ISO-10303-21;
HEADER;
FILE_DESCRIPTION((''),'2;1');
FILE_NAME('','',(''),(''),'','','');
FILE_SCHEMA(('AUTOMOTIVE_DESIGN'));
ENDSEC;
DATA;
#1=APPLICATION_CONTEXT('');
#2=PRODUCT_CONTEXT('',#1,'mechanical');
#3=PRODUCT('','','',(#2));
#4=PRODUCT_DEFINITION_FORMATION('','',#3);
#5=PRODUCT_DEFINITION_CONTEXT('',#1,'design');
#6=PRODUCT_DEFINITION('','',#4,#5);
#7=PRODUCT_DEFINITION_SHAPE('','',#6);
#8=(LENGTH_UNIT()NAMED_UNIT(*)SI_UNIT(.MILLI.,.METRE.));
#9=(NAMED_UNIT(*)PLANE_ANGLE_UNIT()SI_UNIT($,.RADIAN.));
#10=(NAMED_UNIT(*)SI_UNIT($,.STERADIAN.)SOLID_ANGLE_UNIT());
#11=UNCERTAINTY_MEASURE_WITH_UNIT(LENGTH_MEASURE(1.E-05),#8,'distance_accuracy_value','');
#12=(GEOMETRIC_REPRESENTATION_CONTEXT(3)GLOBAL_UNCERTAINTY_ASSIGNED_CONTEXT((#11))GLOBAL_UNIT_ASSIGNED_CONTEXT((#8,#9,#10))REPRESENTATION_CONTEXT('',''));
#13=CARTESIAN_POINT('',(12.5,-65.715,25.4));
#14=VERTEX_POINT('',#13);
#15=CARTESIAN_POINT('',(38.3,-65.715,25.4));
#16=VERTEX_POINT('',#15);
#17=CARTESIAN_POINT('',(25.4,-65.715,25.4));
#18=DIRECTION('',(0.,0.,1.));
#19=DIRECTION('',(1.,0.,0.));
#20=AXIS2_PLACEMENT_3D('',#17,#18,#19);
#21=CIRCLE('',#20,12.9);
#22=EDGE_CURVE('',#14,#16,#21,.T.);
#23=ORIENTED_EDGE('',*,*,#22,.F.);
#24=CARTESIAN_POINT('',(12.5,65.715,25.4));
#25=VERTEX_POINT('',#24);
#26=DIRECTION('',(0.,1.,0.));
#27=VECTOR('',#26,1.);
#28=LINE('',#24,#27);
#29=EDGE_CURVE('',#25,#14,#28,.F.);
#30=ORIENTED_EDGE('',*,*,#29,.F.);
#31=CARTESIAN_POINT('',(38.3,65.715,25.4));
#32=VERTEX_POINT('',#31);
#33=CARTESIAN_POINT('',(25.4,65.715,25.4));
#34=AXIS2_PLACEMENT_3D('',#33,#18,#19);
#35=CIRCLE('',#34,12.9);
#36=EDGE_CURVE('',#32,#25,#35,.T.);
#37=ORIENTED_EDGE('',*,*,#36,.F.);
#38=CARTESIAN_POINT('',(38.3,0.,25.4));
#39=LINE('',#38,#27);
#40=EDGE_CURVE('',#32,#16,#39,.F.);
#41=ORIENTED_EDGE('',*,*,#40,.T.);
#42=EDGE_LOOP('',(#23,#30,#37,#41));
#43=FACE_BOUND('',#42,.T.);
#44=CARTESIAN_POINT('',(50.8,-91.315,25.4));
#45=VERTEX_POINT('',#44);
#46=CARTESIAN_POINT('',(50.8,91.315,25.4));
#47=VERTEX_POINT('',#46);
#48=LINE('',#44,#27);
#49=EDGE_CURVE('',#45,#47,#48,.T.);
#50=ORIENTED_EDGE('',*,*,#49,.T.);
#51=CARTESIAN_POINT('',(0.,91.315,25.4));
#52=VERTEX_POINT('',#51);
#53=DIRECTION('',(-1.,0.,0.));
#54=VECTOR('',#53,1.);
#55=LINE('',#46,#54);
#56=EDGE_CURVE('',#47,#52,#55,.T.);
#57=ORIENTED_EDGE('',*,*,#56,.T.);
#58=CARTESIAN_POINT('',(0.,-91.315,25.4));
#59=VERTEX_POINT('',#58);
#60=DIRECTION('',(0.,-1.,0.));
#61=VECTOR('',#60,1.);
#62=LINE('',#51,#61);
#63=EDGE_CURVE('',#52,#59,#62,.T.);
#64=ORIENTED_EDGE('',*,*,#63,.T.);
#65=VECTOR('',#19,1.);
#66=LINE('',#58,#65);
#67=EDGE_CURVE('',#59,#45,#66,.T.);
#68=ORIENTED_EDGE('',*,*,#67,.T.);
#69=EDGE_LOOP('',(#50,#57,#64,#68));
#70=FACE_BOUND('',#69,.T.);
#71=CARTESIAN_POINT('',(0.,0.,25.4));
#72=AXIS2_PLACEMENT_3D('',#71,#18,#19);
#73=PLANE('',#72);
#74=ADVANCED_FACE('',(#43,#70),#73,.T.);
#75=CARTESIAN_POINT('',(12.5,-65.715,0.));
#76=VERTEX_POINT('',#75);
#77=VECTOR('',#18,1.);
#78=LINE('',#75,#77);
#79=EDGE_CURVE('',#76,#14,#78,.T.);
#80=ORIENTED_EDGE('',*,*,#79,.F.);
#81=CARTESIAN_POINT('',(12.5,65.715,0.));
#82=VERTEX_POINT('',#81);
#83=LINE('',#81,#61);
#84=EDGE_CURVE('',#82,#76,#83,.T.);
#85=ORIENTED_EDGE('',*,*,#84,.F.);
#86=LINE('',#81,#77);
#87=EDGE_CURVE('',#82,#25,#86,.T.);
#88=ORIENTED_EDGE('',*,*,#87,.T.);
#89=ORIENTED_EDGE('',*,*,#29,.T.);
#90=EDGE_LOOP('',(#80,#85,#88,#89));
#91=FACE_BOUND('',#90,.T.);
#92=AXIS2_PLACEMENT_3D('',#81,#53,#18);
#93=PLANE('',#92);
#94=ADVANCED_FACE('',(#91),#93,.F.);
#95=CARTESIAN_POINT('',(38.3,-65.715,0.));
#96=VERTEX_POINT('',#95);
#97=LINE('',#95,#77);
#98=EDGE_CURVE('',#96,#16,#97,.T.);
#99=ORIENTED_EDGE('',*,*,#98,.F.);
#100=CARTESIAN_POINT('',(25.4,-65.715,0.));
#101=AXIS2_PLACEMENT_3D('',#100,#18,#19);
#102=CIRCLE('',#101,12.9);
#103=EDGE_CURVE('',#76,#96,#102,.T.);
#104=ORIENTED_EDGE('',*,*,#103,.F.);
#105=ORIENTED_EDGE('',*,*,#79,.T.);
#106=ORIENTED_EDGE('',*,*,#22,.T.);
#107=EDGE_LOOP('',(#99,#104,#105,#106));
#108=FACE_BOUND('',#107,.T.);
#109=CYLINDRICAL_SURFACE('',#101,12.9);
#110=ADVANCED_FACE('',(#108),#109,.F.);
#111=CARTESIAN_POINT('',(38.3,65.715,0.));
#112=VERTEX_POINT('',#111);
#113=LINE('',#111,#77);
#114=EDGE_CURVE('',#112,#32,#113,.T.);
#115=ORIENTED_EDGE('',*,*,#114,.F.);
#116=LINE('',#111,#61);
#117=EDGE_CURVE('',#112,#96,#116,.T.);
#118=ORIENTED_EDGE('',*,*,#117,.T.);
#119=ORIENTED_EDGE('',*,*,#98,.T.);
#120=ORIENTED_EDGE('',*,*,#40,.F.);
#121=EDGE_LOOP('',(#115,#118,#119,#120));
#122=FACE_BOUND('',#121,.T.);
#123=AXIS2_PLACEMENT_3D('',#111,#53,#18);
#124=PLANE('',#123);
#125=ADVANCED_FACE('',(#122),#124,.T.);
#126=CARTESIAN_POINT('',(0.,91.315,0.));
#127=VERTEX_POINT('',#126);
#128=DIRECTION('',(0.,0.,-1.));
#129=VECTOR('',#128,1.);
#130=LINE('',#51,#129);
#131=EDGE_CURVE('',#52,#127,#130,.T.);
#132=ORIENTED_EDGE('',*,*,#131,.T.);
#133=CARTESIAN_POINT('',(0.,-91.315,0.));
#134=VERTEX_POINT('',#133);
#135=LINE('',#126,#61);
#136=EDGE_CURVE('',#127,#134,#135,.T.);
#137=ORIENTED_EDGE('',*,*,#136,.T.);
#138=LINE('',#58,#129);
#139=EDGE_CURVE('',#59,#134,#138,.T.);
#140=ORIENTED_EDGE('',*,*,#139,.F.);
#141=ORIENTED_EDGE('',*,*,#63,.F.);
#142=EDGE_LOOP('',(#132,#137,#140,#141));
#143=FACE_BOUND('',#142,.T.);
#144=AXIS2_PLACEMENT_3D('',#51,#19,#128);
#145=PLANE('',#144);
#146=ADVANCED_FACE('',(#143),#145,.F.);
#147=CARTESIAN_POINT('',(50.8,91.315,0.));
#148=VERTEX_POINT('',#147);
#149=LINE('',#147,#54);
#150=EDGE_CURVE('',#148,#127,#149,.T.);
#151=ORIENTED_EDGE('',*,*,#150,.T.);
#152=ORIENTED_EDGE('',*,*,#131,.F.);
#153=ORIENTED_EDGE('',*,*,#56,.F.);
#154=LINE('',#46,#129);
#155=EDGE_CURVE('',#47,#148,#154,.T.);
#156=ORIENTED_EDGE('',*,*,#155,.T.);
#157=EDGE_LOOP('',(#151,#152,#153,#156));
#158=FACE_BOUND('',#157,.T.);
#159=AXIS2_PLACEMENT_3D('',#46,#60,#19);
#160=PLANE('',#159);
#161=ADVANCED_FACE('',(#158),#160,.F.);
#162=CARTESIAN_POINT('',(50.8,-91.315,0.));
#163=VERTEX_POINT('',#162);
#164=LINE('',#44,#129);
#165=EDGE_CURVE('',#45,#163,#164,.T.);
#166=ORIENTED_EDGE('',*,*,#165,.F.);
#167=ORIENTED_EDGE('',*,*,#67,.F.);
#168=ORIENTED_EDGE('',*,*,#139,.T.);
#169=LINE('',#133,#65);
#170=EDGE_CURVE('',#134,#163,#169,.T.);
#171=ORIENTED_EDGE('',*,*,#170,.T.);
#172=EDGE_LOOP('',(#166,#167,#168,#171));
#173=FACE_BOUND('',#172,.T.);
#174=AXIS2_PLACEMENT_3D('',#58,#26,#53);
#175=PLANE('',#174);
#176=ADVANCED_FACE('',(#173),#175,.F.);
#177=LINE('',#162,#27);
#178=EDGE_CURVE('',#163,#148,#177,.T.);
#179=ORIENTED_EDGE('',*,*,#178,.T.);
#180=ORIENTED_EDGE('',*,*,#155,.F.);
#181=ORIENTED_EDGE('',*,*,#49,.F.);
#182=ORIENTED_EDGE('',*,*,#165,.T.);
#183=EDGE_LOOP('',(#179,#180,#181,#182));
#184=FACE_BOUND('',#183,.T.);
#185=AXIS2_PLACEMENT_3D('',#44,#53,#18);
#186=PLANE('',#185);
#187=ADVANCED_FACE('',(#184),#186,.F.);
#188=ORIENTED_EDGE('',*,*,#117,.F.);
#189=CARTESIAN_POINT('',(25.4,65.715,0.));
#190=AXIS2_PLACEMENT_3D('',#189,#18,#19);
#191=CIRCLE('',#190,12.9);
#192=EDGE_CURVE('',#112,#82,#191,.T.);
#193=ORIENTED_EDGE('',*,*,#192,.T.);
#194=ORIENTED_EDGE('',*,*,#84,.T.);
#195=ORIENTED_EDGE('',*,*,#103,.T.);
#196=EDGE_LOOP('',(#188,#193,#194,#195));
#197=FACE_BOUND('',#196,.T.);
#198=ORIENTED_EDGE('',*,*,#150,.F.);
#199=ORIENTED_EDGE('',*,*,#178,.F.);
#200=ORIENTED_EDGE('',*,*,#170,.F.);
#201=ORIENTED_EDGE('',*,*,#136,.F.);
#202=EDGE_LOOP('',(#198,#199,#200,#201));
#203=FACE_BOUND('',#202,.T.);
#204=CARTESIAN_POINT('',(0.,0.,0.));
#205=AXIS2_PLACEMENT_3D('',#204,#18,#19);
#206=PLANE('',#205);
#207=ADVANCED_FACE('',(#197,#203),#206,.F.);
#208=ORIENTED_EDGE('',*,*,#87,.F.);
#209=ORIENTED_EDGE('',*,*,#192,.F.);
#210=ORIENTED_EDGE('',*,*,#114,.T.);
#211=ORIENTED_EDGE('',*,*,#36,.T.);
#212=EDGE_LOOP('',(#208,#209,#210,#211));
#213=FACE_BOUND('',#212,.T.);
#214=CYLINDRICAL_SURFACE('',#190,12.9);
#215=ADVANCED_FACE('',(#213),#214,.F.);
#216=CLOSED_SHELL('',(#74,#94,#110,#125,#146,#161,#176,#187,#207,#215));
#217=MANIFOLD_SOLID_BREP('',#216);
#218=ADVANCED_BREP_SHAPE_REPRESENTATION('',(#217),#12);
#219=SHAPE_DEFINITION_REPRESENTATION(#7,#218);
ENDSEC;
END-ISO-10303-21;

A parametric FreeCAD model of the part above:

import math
import FreeCAD as App
import Part
import Sketcher
from FreeCAD import Vector
Q = App.Units.Quantity


def add_polygon(sketch, points):
    """Adds a closed chain of lines whose ends are joined by coincident constraints."""
    first, n = sketch.GeometryCount, len(points)
    for a, b in zip(points, points[1:] + points[:1]):
        sketch.addGeometry(Part.LineSegment(App.Vector(*a, 0), App.Vector(*b, 0)), False)
    for i in range(n):
        sketch.addConstraint(Sketcher.Constraint("Coincident", first + i, 2, first + (i + 1) % n, 1))

doc = App.newDocument("Part")
body = doc.addObject("PartDesign::Body", "Body")

# Sketch on XY plane
sketch1 = body.newObject("Sketcher::SketchObject", "Sketch")
sketch1.AttachmentSupport = (doc.getObject("XY_Plane"), [""])
sketch1.MapMode = "FlatFace"
add_polygon(sketch1, [(0, 91), (0, -91), (51, -91), (51, 91)])  # lines 0-3
sketch1.addConstraint(Sketcher.Constraint("Vertical", 0))
sketch1.addConstraint(Sketcher.Constraint("Horizontal", 1))
sketch1.addConstraint(Sketcher.Constraint("Vertical", 2))
sketch1.addConstraint(Sketcher.Constraint("Horizontal", 3))
sketch1.addConstraint(Sketcher.Constraint("Symmetric", 0, 2, 3, 2, -1, 1))
sketch1.addConstraint(Sketcher.Constraint("DistanceX", 1, 1, 1, 2, Q("2 in")))
sketch1.addConstraint(Sketcher.Constraint("DistanceY", 0, 2, 0, 1, 182.63))
pad1 = body.newObject("PartDesign::Pad", "Pad")
pad1.Profile = sketch1
pad1.Length = Q("1 in")

# Sketch on XY plane
sketch2 = body.newObject("Sketcher::SketchObject", "Sketch001")
sketch2.AttachmentSupport = (doc.getObject("XY_Plane"), [""])
sketch2.MapMode = "FlatFace"
sketch2.AttachmentOffset = App.Placement(Vector(0, 0, 1 * 25.4), App.Rotation())
sketch2.addGeometry(Part.LineSegment(Vector(38, -66, 0), Vector(38, 66, 0)), False)
sketch2.addGeometry(Part.ArcOfCircle(Part.Circle(Vector(25, 66, 0), Vector(0, 0, 1), 13), math.radians(0), math.radians(180)), False)
sketch2.addGeometry(Part.LineSegment(Vector(12, 66, 0), Vector(12, -66, 0)), False)
sketch2.addGeometry(Part.ArcOfCircle(Part.Circle(Vector(25, -66, 0), Vector(0, 0, 1), 13), math.radians(180), math.radians(360)), False)
sketch2.addConstraint(Sketcher.Constraint("Tangent", 0, 2, 1, 1))
sketch2.addConstraint(Sketcher.Constraint("Tangent", 1, 2, 2, 1))
sketch2.addConstraint(Sketcher.Constraint("Tangent", 2, 2, 3, 1))
sketch2.addConstraint(Sketcher.Constraint("Tangent", 3, 2, 0, 1))
sketch2.addConstraint(Sketcher.Constraint("Vertical", 0))
sketch2.addConstraint(Sketcher.Constraint("Vertical", 2))
sketch2.addConstraint(Sketcher.Constraint("DistanceX", -1, 1, 1, 3, Q("1 in")))
sketch2.addConstraint(Sketcher.Constraint("Radius", 1, 12.9))
sketch2.addConstraint(Sketcher.Constraint("DistanceY", 0, 1, 0, 2, 131.43))
sketch2.addConstraint(Sketcher.Constraint("DistanceY", -1, 1, 1, 3, 65.715))
pocket1 = body.newObject("PartDesign::Pocket", "Pocket")
pocket1.Profile = sketch2
pocket1.Type = "ThroughAll"
pocket1.Midplane = True

doc.recompute()
